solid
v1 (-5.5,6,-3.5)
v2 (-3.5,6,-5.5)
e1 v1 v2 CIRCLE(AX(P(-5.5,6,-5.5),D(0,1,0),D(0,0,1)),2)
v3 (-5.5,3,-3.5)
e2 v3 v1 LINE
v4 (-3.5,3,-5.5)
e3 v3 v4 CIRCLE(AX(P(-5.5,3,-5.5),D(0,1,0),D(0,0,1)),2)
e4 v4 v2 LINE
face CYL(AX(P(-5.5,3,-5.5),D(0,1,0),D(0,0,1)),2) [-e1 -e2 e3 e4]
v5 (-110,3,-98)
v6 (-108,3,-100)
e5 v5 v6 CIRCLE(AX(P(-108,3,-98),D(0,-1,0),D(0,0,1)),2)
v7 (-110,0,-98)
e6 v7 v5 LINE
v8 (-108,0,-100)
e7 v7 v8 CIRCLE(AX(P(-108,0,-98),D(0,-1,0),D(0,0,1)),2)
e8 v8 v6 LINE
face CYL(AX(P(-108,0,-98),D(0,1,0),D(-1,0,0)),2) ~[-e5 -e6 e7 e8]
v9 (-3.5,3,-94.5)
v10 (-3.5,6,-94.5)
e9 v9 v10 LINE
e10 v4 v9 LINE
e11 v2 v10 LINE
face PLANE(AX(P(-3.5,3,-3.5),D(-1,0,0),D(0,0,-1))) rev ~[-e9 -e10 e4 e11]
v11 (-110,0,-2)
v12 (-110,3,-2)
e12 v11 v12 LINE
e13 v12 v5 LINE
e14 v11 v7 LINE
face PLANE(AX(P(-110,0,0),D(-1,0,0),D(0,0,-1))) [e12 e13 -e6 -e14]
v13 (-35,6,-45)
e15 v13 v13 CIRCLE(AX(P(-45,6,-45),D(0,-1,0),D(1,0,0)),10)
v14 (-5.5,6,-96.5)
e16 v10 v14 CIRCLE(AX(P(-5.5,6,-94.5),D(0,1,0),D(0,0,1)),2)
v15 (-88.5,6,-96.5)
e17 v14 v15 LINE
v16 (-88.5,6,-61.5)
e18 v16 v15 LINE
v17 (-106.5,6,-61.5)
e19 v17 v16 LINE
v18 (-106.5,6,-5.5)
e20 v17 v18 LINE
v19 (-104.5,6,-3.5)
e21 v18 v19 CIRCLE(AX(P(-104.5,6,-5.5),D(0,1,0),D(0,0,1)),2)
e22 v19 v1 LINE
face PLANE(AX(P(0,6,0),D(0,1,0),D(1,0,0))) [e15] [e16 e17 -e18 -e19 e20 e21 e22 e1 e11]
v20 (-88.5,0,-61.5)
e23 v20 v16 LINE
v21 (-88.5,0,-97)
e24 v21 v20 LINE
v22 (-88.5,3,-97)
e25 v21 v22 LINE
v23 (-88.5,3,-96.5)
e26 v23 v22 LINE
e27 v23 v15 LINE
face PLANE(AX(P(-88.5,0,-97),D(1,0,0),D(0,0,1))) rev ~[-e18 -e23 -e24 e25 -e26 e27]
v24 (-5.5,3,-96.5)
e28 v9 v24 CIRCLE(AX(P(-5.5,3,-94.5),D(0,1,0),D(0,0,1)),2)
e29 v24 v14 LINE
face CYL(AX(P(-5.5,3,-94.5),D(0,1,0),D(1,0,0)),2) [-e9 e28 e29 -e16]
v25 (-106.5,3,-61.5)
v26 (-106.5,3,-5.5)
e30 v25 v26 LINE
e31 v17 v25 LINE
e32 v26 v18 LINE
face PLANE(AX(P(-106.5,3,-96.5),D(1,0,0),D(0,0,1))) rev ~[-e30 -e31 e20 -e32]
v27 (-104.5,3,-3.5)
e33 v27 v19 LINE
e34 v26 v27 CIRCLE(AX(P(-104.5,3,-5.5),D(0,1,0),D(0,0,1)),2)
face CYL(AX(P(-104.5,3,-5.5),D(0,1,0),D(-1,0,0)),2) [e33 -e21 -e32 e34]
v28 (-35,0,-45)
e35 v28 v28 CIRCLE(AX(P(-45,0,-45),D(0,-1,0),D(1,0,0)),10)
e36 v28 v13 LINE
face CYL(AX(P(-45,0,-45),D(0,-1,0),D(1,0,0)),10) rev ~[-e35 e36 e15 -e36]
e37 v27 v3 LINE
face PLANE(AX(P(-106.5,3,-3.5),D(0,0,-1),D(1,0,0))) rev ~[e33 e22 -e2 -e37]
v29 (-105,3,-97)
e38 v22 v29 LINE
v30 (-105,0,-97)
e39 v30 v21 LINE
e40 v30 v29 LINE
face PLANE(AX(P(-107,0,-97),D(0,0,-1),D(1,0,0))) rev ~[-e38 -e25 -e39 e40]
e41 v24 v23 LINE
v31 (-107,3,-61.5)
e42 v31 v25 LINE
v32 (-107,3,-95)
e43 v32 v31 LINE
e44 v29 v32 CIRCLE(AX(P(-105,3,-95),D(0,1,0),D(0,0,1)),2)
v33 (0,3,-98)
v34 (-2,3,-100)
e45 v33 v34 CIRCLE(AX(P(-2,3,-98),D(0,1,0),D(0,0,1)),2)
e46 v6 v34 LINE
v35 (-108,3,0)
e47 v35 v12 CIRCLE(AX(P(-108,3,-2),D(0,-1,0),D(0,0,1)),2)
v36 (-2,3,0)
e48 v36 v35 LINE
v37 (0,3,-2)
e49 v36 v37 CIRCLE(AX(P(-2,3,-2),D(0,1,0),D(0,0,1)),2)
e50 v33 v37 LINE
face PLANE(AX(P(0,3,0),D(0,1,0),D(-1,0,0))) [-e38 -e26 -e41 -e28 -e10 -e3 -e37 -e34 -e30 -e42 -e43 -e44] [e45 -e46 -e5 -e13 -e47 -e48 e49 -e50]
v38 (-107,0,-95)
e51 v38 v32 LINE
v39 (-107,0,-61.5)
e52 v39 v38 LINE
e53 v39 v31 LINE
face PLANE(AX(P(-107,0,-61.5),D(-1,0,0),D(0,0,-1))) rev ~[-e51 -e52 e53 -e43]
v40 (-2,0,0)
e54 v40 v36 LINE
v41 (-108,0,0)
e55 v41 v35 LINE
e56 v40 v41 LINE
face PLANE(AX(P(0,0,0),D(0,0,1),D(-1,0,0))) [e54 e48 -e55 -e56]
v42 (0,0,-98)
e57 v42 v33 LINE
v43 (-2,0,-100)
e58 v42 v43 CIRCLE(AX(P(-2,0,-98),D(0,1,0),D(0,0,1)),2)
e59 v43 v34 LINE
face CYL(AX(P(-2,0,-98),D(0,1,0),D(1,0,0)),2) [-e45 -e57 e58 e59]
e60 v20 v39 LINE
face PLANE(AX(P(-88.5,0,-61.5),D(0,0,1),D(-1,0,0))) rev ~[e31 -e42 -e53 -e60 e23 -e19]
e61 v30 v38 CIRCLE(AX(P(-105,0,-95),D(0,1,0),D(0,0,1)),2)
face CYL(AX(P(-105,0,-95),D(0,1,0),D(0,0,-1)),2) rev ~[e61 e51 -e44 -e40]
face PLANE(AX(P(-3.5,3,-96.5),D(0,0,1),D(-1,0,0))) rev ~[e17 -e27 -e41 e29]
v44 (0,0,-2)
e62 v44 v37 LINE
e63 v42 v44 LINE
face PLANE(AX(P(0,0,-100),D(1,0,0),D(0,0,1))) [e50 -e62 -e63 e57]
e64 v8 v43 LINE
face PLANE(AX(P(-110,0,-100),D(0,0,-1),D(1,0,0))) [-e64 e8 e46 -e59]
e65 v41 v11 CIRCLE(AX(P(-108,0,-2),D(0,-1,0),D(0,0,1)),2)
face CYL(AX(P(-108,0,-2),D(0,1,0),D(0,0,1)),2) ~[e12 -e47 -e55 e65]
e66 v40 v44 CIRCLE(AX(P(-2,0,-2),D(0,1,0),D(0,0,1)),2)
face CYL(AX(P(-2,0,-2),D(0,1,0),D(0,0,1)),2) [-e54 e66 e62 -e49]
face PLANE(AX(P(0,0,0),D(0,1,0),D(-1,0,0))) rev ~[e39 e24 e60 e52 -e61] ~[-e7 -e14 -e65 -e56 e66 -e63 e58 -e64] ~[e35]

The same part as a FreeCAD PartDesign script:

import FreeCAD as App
import Part
import Sketcher
from FreeCAD import Vector


def edges_at(feature, points):
    """Names of the edges that pass closest to the given points."""
    edges = feature.Shape.Edges
    near = lambda p: min(range(len(edges)), key=lambda i: edges[i].distToShape(Part.Vertex(*p))[0])
    return sorted({f"Edge{near(p) + 1}" for p in points})


def add_polygon(sketch, points):
    """Adds a closed chain of lines whose ends are joined by coincident constraints."""
    first, n = sketch.GeometryCount, len(points)
    for a, b in zip(points, points[1:] + points[:1]):
        sketch.addGeometry(Part.LineSegment(App.Vector(*a, 0), App.Vector(*b, 0)), False)
    for i in range(n):
        sketch.addConstraint(Sketcher.Constraint("Coincident", first + i, 2, first + (i + 1) % n, 1))

doc = App.newDocument("Part")
params = doc.addObject("Spreadsheet::Sheet", "Params")
for row, (alias, value) in enumerate([
    ("sketch1_width", "110 mm"),
    ("sketch1_height", "100 mm"),
    ("pad1_length", "3 mm"),
    ("sketch2_width", "103 mm"),
    ("sketch2_height", "93 mm"),
    ("pad2_length", "3 mm"),
    ("fillet_radius", "2 mm"),
    ("sketch3_width", "18.5 mm"),
    ("sketch3_height", "35.5 mm"),
    ("pocket1_length", "10 mm"),
    ("fillet2_radius", "2 mm"),
    ("sketch4_diameter", "20 mm"),
    ("pocket2_length", "10 mm"),
], start=1):
    params.set(f"A{row}", alias)
    params.set(f"B{row}", "=" + value)
    params.setAlias(f"B{row}", alias)

body = doc.addObject("PartDesign::Body", "Body")

sketch1 = body.newObject("Sketcher::SketchObject", "Sketch")
sketch1.AttachmentSupport = (doc.getObject("XZ_Plane"), [""])
sketch1.MapMode = "FlatFace"
add_polygon(sketch1, [(-110, 0), (0, 0), (0, -100), (-110, -100)])
sketch1.addConstraint(Sketcher.Constraint("Horizontal", 0))
sketch1.addConstraint(Sketcher.Constraint("Vertical", 1))
sketch1.addConstraint(Sketcher.Constraint("Horizontal", 2))
sketch1.addConstraint(Sketcher.Constraint("Vertical", 3))
sketch1.addConstraint(Sketcher.Constraint("Coincident", 0, 2, -1, 1))
sketch1.addConstraint(Sketcher.Constraint("DistanceX", 0, 1, 0, 2, 110.0))
sketch1.addConstraint(Sketcher.Constraint("DistanceY", 1, 2, 1, 1, 100.0))
sketch1.setExpression("Constraints[9]", "Params.sketch1_width")
sketch1.setExpression("Constraints[10]", "Params.sketch1_height")
pad1 = body.newObject("PartDesign::Pad", "Pad")
pad1.Profile = sketch1
pad1.setExpression("Length", "Params.pad1_length")
pad1.Reversed = True

sketch2 = body.newObject("Sketcher::SketchObject", "Sketch001")
sketch2.AttachmentSupport = (doc.getObject("XZ_Plane"), [""])
sketch2.MapMode = "FlatFace"
sketch2.AttachmentOffset = App.Placement(Vector(0, 0, -3), App.Rotation())
add_polygon(sketch2, [(-106, -96), (-106, -4), (-4, -4), (-4, -96)])
sketch2.addConstraint(Sketcher.Constraint("Vertical", 0))
sketch2.addConstraint(Sketcher.Constraint("Horizontal", 1))
sketch2.addConstraint(Sketcher.Constraint("Vertical", 2))
sketch2.addConstraint(Sketcher.Constraint("Horizontal", 3))
sketch2.addConstraint(Sketcher.Constraint("DistanceY", 0, 2, -1, 1, 3.5))
sketch2.addConstraint(Sketcher.Constraint("DistanceX", 1, 2, -1, 1, 3.5))
sketch2.addConstraint(Sketcher.Constraint("DistanceX", 1, 1, 1, 2, 103.0))
sketch2.addConstraint(Sketcher.Constraint("DistanceY", 0, 1, 0, 2, 93.0))
sketch2.setExpression("Constraints[10]", "Params.sketch2_width")
sketch2.setExpression("Constraints[11]", "Params.sketch2_height")
pad2 = body.newObject("PartDesign::Pad", "Pad001")
pad2.Profile = sketch2
pad2.setExpression("Length", "Params.pad2_length")
pad2.Reversed = True
doc.recompute()

fillet = body.newObject("PartDesign::Fillet", "Fillet")
fillet.Base = (pad2, edges_at(pad2, [
    (0, 1.5, 0),
    (-3.5, 4.5, -3.5),
    (-110, 1.5, 0),
    (-106.5, 4.5, -3.5),
    (-106.5, 4.5, -96.5),
    (-110, 1.5, -100),
    (-3.5, 4.5, -96.5),
    (0, 1.5, -100),
]))
fillet.setExpression("Radius", "Params.fillet_radius")

sketch3 = body.newObject("Sketcher::SketchObject", "Sketch002")
sketch3.AttachmentSupport = (doc.getObject("XZ_Plane"), [""])
sketch3.MapMode = "FlatFace"
add_polygon(sketch3, [(-107, -62), (-107, -97), (-88, -97), (-88, -62)])
sketch3.addConstraint(Sketcher.Constraint("Vertical", 0))
sketch3.addConstraint(Sketcher.Constraint("Horizontal", 1))
sketch3.addConstraint(Sketcher.Constraint("Vertical", 2))
sketch3.addConstraint(Sketcher.Constraint("Horizontal", 3))
sketch3.addConstraint(Sketcher.Constraint("DistanceX", 1, 1, 1, 2, 18.5))
sketch3.addConstraint(Sketcher.Constraint("DistanceY", 0, 2, 0, 1, 35.5))
sketch3.addConstraint(Sketcher.Constraint("DistanceX", 0, 2, -1, 1, 107.0))
sketch3.addConstraint(Sketcher.Constraint("DistanceY", 0, 2, -1, 1, 97.0))
sketch3.setExpression("Constraints[8]", "Params.sketch3_width")
sketch3.setExpression("Constraints[9]", "Params.sketch3_height")
pocket1 = body.newObject("PartDesign::Pocket", "Pocket")
pocket1.Profile = sketch3
pocket1.setExpression("Length", "Params.pocket1_length")
doc.recompute()

fillet2 = body.newObject("PartDesign::Fillet", "Fillet001")
fillet2.Base = (pocket1, edges_at(pocket1, [(-107, 1.5, -97)]))
fillet2.setExpression("Radius", "Params.fillet2_radius")

sketch4 = body.newObject("Sketcher::SketchObject", "Sketch003")
sketch4.AttachmentSupport = (doc.getObject("XZ_Plane"), [""])
sketch4.MapMode = "FlatFace"
sketch4.addGeometry(Part.Circle(Vector(-45, -45, 0), Vector(0, 0, 1), 10), False)
sketch4.addConstraint(Sketcher.Constraint("Diameter", 0, 20.0))
sketch4.addConstraint(Sketcher.Constraint("DistanceX", 0, 3, -1, 1, 45.0))
sketch4.addConstraint(Sketcher.Constraint("DistanceY", 0, 3, -1, 1, 45.0))
sketch4.setExpression("Constraints[0]", "Params.sketch4_diameter")
pocket2 = body.newObject("PartDesign::Pocket", "Pocket001")
pocket2.Profile = sketch4
pocket2.setExpression("Length", "Params.pocket2_length")

doc.recompute()
